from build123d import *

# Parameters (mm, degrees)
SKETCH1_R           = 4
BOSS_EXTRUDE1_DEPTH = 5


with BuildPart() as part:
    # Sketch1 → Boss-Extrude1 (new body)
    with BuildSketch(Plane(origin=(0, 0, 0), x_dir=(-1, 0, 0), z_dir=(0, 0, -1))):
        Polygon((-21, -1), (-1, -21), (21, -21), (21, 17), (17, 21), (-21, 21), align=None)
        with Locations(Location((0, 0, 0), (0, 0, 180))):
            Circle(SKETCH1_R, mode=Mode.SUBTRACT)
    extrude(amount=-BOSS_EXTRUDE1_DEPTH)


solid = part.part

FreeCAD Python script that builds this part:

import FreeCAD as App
import Part
import Sketcher


def add_polygon(sketch, points):
    """Adds a closed chain of lines whose ends are joined by coincident constraints."""
    first, n = sketch.GeometryCount, len(points)
    for a, b in zip(points, points[1:] + points[:1]):
        sketch.addGeometry(Part.LineSegment(App.Vector(*a, 0), App.Vector(*b, 0)), False)
    for i in range(n):
        sketch.addConstraint(Sketcher.Constraint("Coincident", first + i, 2, first + (i + 1) % n, 1))

doc = App.newDocument("Part")
body = doc.addObject("PartDesign::Body", "Body")

sketch1 = body.newObject("Sketcher::SketchObject", "Sketch")
sketch1.AttachmentSupport = (doc.getObject("XY_Plane"), [""])
sketch1.MapMode = "FlatFace"
add_polygon(sketch1, [(21, -1), (1, -21), (-21, -21), (-21, 17), (-17, 21), (21, 21)])
sketch1.addGeometry(Part.Circle(App.Vector(0, 0, 0), App.Vector(0, 0, 1), 4), False)
sketch1.addConstraint([
    Sketcher.Constraint("Horizontal", 1),
    Sketcher.Constraint("Vertical", 2),
    Sketcher.Constraint("Horizontal", 4),
    Sketcher.Constraint("Vertical", 5),
    Sketcher.Constraint("Coincident", 6, 3, -1, 1),
    Sketcher.Constraint("Symmetric", 1, 2, 4, 2, -1, 1),
    Sketcher.Constraint("Parallel", 0, 3),
    Sketcher.Constraint("Equal", 4, 2),
    Sketcher.Constraint("Equal", 1, 5),
    Sketcher.Constraint("Diameter", 6, 8.0),
    Sketcher.Constraint("DistanceX", 1, 2, 1, 1, 22.0),
    Sketcher.Constraint("DistanceX", 4, 1, 4, 2, 38.0),
    Sketcher.Constraint("DistanceX", -1, 1, 0, 2, 1.0),
])
pad1 = body.newObject("PartDesign::Pad", "Pad")
pad1.Profile = sketch1
pad1.Length = 5

doc.recompute()
